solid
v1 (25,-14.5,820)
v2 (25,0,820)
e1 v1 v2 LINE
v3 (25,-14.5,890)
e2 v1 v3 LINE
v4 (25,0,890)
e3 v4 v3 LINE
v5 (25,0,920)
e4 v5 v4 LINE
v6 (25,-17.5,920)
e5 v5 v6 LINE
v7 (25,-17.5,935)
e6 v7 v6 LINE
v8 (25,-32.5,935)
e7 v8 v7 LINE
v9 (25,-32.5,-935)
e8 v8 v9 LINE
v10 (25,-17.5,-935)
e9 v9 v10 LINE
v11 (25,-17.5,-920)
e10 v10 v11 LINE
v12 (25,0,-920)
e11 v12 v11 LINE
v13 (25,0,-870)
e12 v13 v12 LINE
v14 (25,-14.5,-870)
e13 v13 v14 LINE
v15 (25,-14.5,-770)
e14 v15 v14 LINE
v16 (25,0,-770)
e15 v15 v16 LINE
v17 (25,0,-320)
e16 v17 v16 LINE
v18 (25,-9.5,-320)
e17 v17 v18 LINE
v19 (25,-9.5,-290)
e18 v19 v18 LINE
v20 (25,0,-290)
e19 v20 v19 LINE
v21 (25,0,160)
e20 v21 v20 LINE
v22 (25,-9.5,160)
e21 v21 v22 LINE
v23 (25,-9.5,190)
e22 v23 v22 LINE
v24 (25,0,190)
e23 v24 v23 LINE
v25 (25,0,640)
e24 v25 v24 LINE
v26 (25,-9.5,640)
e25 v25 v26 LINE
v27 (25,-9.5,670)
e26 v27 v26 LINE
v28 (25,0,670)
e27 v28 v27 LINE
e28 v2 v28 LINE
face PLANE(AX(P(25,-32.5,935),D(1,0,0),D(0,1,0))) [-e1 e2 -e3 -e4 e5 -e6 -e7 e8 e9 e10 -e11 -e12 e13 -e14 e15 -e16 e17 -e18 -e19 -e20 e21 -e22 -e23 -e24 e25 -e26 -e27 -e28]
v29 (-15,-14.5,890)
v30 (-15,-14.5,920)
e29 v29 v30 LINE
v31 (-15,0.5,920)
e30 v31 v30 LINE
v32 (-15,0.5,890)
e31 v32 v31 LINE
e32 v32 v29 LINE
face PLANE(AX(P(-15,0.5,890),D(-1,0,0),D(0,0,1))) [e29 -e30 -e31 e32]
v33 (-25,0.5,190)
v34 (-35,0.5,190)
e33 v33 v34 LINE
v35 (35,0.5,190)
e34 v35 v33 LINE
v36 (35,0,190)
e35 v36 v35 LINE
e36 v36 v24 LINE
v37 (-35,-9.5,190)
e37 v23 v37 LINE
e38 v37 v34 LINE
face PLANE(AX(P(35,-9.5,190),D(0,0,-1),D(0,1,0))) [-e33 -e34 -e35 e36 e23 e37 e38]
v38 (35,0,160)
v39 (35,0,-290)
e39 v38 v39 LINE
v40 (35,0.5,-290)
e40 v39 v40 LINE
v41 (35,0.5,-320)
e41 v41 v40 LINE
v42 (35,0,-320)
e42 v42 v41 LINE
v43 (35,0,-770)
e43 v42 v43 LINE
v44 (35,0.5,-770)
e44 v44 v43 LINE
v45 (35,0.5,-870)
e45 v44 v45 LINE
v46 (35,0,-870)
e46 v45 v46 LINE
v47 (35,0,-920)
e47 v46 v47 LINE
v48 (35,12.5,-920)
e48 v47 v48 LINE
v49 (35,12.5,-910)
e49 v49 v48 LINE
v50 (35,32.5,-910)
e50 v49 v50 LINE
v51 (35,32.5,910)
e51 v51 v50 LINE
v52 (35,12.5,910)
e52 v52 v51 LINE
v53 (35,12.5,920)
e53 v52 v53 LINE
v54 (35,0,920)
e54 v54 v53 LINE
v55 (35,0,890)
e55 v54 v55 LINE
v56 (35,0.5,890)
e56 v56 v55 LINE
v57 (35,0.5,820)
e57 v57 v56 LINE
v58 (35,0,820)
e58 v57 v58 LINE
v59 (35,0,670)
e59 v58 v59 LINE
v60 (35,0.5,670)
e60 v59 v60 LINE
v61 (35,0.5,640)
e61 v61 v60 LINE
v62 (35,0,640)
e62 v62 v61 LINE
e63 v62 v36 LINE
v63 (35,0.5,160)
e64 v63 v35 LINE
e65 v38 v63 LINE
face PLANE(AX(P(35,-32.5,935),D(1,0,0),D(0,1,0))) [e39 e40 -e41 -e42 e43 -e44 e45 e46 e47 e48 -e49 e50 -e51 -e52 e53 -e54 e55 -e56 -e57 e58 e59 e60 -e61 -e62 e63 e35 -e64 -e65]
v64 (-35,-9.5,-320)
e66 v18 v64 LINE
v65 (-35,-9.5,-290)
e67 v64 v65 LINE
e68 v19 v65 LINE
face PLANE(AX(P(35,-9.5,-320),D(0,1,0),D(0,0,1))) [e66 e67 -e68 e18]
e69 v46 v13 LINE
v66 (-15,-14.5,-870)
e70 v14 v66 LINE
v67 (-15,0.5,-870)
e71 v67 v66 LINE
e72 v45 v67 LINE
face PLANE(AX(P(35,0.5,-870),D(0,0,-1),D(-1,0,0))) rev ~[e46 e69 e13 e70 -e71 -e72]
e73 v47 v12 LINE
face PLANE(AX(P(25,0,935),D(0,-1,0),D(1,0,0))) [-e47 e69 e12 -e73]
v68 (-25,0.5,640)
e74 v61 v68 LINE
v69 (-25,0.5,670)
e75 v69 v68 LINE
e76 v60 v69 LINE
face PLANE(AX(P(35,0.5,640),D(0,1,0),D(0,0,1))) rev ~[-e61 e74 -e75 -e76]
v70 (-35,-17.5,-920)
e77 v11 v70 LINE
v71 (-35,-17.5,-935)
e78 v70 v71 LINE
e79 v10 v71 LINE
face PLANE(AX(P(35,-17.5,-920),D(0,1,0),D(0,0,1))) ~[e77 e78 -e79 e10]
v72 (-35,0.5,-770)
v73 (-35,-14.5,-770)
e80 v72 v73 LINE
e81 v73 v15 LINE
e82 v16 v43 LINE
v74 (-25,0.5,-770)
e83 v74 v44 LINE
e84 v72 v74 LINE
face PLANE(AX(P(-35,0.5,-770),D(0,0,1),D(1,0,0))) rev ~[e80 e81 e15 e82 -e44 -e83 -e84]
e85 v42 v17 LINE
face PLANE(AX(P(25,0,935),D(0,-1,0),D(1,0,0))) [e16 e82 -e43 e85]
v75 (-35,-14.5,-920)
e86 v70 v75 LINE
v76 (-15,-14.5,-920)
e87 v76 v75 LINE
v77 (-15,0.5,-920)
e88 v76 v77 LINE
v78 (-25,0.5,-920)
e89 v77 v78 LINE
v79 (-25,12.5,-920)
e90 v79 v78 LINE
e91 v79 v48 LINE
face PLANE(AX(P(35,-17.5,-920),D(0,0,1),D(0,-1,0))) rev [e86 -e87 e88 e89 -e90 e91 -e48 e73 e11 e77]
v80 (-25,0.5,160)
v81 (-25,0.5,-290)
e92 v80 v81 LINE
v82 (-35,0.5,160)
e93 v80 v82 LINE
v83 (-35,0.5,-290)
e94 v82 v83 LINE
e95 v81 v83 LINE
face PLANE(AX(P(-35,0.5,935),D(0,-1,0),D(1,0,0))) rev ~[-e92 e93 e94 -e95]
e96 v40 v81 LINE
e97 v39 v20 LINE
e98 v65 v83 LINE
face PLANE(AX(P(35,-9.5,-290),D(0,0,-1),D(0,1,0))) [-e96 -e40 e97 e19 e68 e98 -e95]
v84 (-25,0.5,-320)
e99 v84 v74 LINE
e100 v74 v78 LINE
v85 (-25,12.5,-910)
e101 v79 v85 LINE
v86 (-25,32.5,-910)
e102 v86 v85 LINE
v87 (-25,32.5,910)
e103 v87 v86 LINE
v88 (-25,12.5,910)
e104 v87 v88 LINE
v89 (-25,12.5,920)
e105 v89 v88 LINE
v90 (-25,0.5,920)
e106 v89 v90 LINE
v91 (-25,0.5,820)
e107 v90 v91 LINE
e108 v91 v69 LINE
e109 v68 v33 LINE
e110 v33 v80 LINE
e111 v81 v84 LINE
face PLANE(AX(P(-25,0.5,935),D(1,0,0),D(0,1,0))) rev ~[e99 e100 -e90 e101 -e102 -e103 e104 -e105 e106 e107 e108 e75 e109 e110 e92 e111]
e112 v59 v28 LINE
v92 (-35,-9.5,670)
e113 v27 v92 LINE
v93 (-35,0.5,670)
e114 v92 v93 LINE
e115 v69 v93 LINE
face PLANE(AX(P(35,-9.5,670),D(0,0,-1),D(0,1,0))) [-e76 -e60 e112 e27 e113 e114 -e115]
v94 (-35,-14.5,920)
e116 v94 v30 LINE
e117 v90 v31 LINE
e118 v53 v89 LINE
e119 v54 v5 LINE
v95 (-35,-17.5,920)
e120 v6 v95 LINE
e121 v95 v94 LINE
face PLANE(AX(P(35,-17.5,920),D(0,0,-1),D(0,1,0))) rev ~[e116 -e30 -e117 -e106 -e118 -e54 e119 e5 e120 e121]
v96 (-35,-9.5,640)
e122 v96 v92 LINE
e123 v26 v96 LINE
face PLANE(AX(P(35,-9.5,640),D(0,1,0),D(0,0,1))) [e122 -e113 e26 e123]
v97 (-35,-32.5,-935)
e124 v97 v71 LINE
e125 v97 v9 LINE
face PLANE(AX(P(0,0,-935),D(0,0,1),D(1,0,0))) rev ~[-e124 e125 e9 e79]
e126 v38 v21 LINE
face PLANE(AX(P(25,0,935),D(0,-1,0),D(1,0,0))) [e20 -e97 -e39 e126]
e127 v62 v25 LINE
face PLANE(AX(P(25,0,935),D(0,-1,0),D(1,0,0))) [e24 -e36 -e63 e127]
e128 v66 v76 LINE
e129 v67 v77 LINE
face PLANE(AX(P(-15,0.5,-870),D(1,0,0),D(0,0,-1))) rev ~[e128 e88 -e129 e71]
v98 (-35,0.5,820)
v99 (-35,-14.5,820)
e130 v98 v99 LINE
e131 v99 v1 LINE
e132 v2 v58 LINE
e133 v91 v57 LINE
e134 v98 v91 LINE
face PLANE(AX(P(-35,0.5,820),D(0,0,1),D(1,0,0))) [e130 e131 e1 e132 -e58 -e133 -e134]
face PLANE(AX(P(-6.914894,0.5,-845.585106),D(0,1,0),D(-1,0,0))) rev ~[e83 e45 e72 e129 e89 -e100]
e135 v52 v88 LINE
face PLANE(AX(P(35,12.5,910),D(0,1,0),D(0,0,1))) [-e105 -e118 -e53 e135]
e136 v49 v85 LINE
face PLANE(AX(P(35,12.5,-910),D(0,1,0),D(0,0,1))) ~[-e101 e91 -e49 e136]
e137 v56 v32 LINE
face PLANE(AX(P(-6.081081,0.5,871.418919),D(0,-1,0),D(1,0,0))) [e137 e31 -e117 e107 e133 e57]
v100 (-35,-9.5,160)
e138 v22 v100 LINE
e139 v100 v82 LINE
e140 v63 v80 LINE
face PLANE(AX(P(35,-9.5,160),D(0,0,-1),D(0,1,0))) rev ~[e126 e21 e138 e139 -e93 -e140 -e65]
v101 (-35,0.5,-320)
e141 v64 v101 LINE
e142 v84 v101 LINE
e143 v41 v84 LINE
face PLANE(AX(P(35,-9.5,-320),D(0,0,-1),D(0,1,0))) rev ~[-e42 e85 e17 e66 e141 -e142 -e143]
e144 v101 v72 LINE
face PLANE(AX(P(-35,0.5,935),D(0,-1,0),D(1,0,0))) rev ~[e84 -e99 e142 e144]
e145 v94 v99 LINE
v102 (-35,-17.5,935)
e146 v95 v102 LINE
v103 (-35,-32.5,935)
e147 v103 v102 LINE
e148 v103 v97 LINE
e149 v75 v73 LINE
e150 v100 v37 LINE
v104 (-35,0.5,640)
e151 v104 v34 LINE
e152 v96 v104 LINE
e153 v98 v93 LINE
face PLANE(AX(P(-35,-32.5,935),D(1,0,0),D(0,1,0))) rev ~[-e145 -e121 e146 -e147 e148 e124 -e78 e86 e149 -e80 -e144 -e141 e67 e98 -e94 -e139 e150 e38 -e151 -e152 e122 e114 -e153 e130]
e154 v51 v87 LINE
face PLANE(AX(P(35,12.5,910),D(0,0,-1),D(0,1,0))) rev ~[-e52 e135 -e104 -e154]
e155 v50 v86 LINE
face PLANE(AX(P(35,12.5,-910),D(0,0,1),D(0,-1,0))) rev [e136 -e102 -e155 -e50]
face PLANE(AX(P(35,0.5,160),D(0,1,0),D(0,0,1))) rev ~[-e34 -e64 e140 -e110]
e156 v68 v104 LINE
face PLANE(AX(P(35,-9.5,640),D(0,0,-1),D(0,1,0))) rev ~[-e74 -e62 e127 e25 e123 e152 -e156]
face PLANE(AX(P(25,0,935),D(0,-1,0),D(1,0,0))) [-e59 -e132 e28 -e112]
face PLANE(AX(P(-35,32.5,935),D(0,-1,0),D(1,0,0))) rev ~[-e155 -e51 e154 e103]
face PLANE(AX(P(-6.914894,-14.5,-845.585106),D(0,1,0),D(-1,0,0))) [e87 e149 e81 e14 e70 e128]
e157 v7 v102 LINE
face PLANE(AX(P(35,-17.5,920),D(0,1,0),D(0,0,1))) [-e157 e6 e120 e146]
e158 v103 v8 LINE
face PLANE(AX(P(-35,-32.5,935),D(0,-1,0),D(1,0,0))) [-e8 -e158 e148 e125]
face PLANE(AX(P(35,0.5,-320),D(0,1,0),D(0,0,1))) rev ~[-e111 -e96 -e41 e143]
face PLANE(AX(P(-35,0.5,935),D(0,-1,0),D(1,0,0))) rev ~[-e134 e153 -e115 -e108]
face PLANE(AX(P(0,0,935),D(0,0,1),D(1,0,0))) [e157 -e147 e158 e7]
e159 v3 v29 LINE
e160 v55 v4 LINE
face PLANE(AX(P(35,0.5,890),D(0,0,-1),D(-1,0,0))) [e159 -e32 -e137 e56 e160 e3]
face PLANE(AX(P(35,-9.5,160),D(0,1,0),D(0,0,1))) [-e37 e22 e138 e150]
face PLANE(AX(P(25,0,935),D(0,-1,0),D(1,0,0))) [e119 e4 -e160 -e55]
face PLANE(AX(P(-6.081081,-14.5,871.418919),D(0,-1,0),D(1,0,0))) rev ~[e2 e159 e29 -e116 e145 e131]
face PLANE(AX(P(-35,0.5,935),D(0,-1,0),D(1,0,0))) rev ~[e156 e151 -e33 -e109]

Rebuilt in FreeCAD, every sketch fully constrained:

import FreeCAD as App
import Part
import Sketcher


def add_polygon(sketch, points):
    """Adds a closed chain of lines whose ends are joined by coincident constraints."""
    first, n = sketch.GeometryCount, len(points)
    for a, b in zip(points, points[1:] + points[:1]):
        sketch.addGeometry(Part.LineSegment(App.Vector(*a, 0), App.Vector(*b, 0)), False)
    for i in range(n):
        sketch.addConstraint(Sketcher.Constraint("Coincident", first + i, 2, first + (i + 1) % n, 1))

doc = App.newDocument("Part")
body = doc.addObject("PartDesign::Body", "Body")

sketch1 = body.newObject("Sketcher::SketchObject", "Sketch")
sketch1.AttachmentSupport = (doc.getObject("XY_Plane"), [""])
sketch1.MapMode = "FlatFace"
sketch1.AttachmentOffset = App.Placement(App.Vector(0, 0, 935), App.Rotation())
add_polygon(sketch1, [(-35, 32.5), (-35, -32.5), (35, -32.5), (35, 32.5)])
sketch1.addConstraint([
    Sketcher.Constraint("Vertical", 0),
    Sketcher.Constraint("Horizontal", 1),
    Sketcher.Constraint("Vertical", 2),
    Sketcher.Constraint("Horizontal", 3),
    Sketcher.Constraint("Symmetric", 0, 2, 2, 2, -1, 1),
    Sketcher.Constraint("DistanceX", 1, 1, 1, 2, 70.0),
    Sketcher.Constraint("DistanceY", 0, 2, 0, 1, 65.0),
])
pad1 = body.newObject("PartDesign::Pad", "Pad")
pad1.Profile = sketch1
pad1.Length = 1870
pad1.Reversed = True

sketch2 = body.newObject("Sketcher::SketchObject", "Sketch001")
sketch2.AttachmentSupport = (doc.getObject("XZ_Plane"), [""])
sketch2.MapMode = "FlatFace"
sketch2.AttachmentOffset = App.Placement(App.Vector(0, 0, -0.5), App.Rotation())
add_polygon(sketch2, [(-15, 890), (35, 890), (35, 820), (-35, 820), (-35, 935), (-15, 935)])
sketch2.addConstraint([
    Sketcher.Constraint("Horizontal", 0),
    Sketcher.Constraint("Vertical", 1),
    Sketcher.Constraint("Horizontal", 2),
    Sketcher.Constraint("Vertical", 3),
    Sketcher.Constraint("Horizontal", 4),
    Sketcher.Constraint("Vertical", 5),
    Sketcher.Constraint("Equal", 2, 1),
    Sketcher.Constraint("DistanceX", 0, 1, 0, 2, 50.0),
    Sketcher.Constraint("DistanceX", 2, 2, 2, 1, 70.0),
    Sketcher.Constraint("DistanceY", 3, 1, 3, 2, 115.0),
    Sketcher.Constraint("DistanceX", -1, 1, 0, 2, 35.0),
    Sketcher.Constraint("DistanceY", -1, 1, 0, 2, 890.0),
])
pocket1 = body.newObject("PartDesign::Pocket", "Pocket")
pocket1.Profile = sketch2
pocket1.Length = 15
pocket1.Reversed = True

sketch3 = body.newObject("Sketcher::SketchObject", "Sketch002")
sketch3.AttachmentSupport = (doc.getObject("XZ_Plane"), [""])
sketch3.MapMode = "FlatFace"
sketch3.AttachmentOffset = App.Placement(App.Vector(0, 0, -0.5), App.Rotation())
add_polygon(sketch3, [(-35, -770), (35, -770), (35, -870), (-15, -870), (-15, -935), (-35, -935)])
sketch3.addConstraint([
    Sketcher.Constraint("Horizontal", 0),
    Sketcher.Constraint("Vertical", 1),
    Sketcher.Constraint("Horizontal", 2),
    Sketcher.Constraint("Vertical", 3),
    Sketcher.Constraint("Horizontal", 4),
    Sketcher.Constraint("Vertical", 5),
    Sketcher.Constraint("DistanceX", 0, 1, 0, 2, 70.0),
    Sketcher.Constraint("DistanceX", 2, 2, 2, 1, 50.0),
    Sketcher.Constraint("DistanceY", 1, 2, 1, 1, 100.0),
    Sketcher.Constraint("DistanceY", 3, 2, 3, 1, 65.0),
    Sketcher.Constraint("DistanceX", -1, 1, 0, 2, 35.0),
    Sketcher.Constraint("DistanceY", 0, 2, -1, 1, 770.0),
])
pocket2 = body.newObject("PartDesign::Pocket", "Pocket001")
pocket2.Profile = sketch3
pocket2.Length = 15
pocket2.Reversed = True

sketch4 = body.newObject("Sketcher::SketchObject", "Sketch003")
sketch4.AttachmentSupport = (doc.getObject("YZ_Plane"), [""])
sketch4.MapMode = "FlatFace"
sketch4.AttachmentOffset = App.Placement(App.Vector(0, 0, 35), App.Rotation())
add_polygon(sketch4, [(-9.5, -290), (-9.5, -320), (0.5, -320), (0.5, -290)])
add_polygon(sketch4, [(-9.5, 190), (-9.5, 160), (0.5, 160), (0.5, 190)])
add_polygon(sketch4, [(-9.5, 670), (-9.5, 640), (0.5, 640), (0.5, 670)])
sketch4.addConstraint([
    Sketcher.Constraint("Vertical", 0),
    Sketcher.Constraint("Horizontal", 1),
    Sketcher.Constraint("Vertical", 2),
    Sketcher.Constraint("Horizontal", 3),
    Sketcher.Constraint("Vertical", 4),
    Sketcher.Constraint("Horizontal", 5),
    Sketcher.Constraint("Vertical", 6),
    Sketcher.Constraint("Horizontal", 7),
    Sketcher.Constraint("Vertical", 8),
    Sketcher.Constraint("Horizontal", 9),
    Sketcher.Constraint("Vertical", 10),
    Sketcher.Constraint("Horizontal", 11),
    Sketcher.Constraint("Vertical", 3, 2, 4, 2),
    Sketcher.Constraint("Vertical", 2, 2, 5, 2),
    Sketcher.Constraint("Vertical", 7, 2, 8, 2),
    Sketcher.Constraint("Vertical", 6, 2, 9, 2),
    Sketcher.Constraint("Equal", 2, 4),
    Sketcher.Constraint("Equal", 6, 8),
    Sketcher.Constraint("DistanceX", 1, 1, 1, 2, 10.0),
    Sketcher.Constraint("DistanceY", 0, 2, 0, 1, 30.0),
    Sketcher.Constraint("DistanceY", 0, 2, -1, 1, 320.0),
    Sketcher.Constraint("DistanceY", -1, 1, 4, 2, 160.0),
    Sketcher.Constraint("DistanceY", -1, 1, 8, 2, 640.0),
    Sketcher.Constraint("DistanceX", 0, 2, -1, 1, 9.5),
])
pocket3 = body.newObject("PartDesign::Pocket", "Pocket002")
pocket3.Profile = sketch4
pocket3.Type = "ThroughAll"

sketch5 = body.newObject("Sketcher::SketchObject", "Sketch004")
sketch5.AttachmentSupport = (doc.getObject("YZ_Plane"), [""])
sketch5.MapMode = "FlatFace"
sketch5.AttachmentOffset = App.Placement(App.Vector(0, 0, 35), App.Rotation())
add_polygon(sketch5, [(12.5, 935), (12.5, 910), (32.5, 910), (32.5, 935)])
sketch5.addConstraint([
    Sketcher.Constraint("Vertical", 0),
    Sketcher.Constraint("Horizontal", 1),
    Sketcher.Constraint("Vertical", 2),
    Sketcher.Constraint("Horizontal", 3),
    Sketcher.Constraint("DistanceX", 1, 1, 1, 2, 20.0),
    Sketcher.Constraint("DistanceY", 0, 2, 0, 1, 25.0),
    Sketcher.Constraint("DistanceY", -1, 1, 0, 2, 910.0),
    Sketcher.Constraint("DistanceX", -1, 1, 0, 2, 12.5),
])
pocket4 = body.newObject("PartDesign::Pocket", "Pocket003")
pocket4.Profile = sketch5
pocket4.Type = "ThroughAll"

sketch6 = body.newObject("Sketcher::SketchObject", "Sketch005")
sketch6.AttachmentSupport = (doc.getObject("YZ_Plane"), [""])
sketch6.MapMode = "FlatFace"
sketch6.AttachmentOffset = App.Placement(App.Vector(0, 0, 35), App.Rotation())
add_polygon(sketch6, [(-17.5, 935), (-17.5, 920), (32.5, 920), (32.5, 935)])
sketch6.addConstraint([
    Sketcher.Constraint("Vertical", 0),
    Sketcher.Constraint("Horizontal", 1),
    Sketcher.Constraint("Vertical", 2),
    Sketcher.Constraint("Horizontal", 3),
    Sketcher.Constraint("DistanceX", 1, 1, 1, 2, 50.0),
    Sketcher.Constraint("DistanceY", 0, 2, 0, 1, 15.0),
    Sketcher.Constraint("DistanceY", -1, 1, 0, 2, 920.0),
    Sketcher.Constraint("DistanceX", 0, 2, -1, 1, 17.5),
])
pocket5 = body.newObject("PartDesign::Pocket", "Pocket004")
pocket5.Profile = sketch6
pocket5.Type = "ThroughAll"
doc.recompute()

mirrored = body.newObject("PartDesign::Mirrored", "Mirrored")
mirrored.Originals = [pocket4, pocket5]
mirrored.MirrorPlane = (doc.getObject("XY_Plane"), [""])
body.Tip = mirrored

sketch7 = body.newObject("Sketcher::SketchObject", "Sketch006")
sketch7.AttachmentSupport = (doc.getObject("XY_Plane"), [""])
sketch7.MapMode = "FlatFace"
sketch7.AttachmentOffset = App.Placement(App.Vector(0, 0, 935), App.Rotation())
add_polygon(sketch7, [(-35, 32.5), (-35, 0.5), (-25, 0.5), (-25, 32.5)])
sketch7.addConstraint([
    Sketcher.Constraint("Vertical", 0),
    Sketcher.Constraint("Horizontal", 1),
    Sketcher.Constraint("Vertical", 2),
    Sketcher.Constraint("Horizontal", 3),
    Sketcher.Constraint("DistanceX", 1, 1, 1, 2, 10.0),
    Sketcher.Constraint("DistanceY", 0, 2, 0, 1, 32.0),
    Sketcher.Constraint("DistanceX", 0, 2, -1, 1, 35.0),
    Sketcher.Constraint("DistanceY", -1, 1, 0, 2, 0.5),
])
pocket6 = body.newObject("PartDesign::Pocket", "Pocket005")
pocket6.Profile = sketch7
pocket6.Type = "ThroughAll"

sketch8 = body.newObject("Sketcher::SketchObject", "Sketch007")
sketch8.AttachmentSupport = (doc.getObject("XY_Plane"), [""])
sketch8.MapMode = "FlatFace"
sketch8.AttachmentOffset = App.Placement(App.Vector(0, 0, 935), App.Rotation())
add_polygon(sketch8, [(25, 0), (25, -32.5), (35, -32.5), (35, 0)])
sketch8.addConstraint([
    Sketcher.Constraint("Vertical", 0),
    Sketcher.Constraint("Horizontal", 1),
    Sketcher.Constraint("Vertical", 2),
    Sketcher.Constraint("Horizontal", 3),
    Sketcher.Constraint("PointOnObject", 2, 2, -1),
    Sketcher.Constraint("DistanceX", 1, 1, 1, 2, 10.0),
    Sketcher.Constraint("DistanceY", 0, 2, 0, 1, 32.5),
    Sketcher.Constraint("DistanceX", -1, 1, 0, 2, 25.0),
])
pocket7 = body.newObject("PartDesign::Pocket", "Pocket006")
pocket7.Profile = sketch8
pocket7.Type = "ThroughAll"

doc.recompute()
